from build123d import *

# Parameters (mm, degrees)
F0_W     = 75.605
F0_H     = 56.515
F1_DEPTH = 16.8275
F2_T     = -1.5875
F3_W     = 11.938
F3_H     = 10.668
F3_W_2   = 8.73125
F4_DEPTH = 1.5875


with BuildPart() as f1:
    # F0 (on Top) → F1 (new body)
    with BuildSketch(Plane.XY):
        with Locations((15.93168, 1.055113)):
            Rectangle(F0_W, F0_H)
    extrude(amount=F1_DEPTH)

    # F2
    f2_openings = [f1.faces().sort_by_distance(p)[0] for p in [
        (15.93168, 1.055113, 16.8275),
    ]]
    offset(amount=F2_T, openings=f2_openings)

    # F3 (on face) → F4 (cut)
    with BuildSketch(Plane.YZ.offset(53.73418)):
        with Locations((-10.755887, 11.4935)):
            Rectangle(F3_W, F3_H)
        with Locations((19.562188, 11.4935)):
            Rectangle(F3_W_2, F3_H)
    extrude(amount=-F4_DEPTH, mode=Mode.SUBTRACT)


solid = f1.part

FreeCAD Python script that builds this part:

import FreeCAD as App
import Part
import Sketcher
Q = App.Units.Quantity


def faces_at(feature, points):
    """Names of the faces that lie closest to the given points."""
    faces = feature.Shape.Faces
    near = lambda p: min(range(len(faces)), key=lambda i: faces[i].distToShape(Part.Vertex(*p))[0])
    return sorted({f"Face{near(p) + 1}" for p in points})

doc = App.newDocument("Part")
body = doc.addObject("PartDesign::Body", "Body")

# Sketch on XY plane
sketch1 = body.newObject("Sketcher::SketchObject", "Sketch")
sketch1.AttachmentSupport = (doc.getObject("XY_Plane"), [""])
sketch1.MapMode = "FlatFace"
sketch1.addGeometry([
    Part.LineSegment(App.Vector(-22, 29, 0), App.Vector(-22, -27, 0)),
    Part.LineSegment(App.Vector(-22, -27, 0), App.Vector(54, -27, 0)),
    Part.LineSegment(App.Vector(54, -27, 0), App.Vector(54, 29, 0)),
    Part.LineSegment(App.Vector(54, 29, 0), App.Vector(-22, 29, 0)),
], False)
sketch1.addConstraint([
    Sketcher.Constraint("Coincident", 0, 2, 1, 1),
    Sketcher.Constraint("Coincident", 1, 2, 2, 1),
    Sketcher.Constraint("Coincident", 2, 2, 3, 1),
    Sketcher.Constraint("Coincident", 3, 2, 0, 1),
    Sketcher.Constraint("Vertical", 0),
    Sketcher.Constraint("Horizontal", 1),
    Sketcher.Constraint("Vertical", 2),
    Sketcher.Constraint("Horizontal", 3),
    Sketcher.Constraint("DistanceY", 0, 2, 0, 1, Q("2.225 in")),
    Sketcher.Constraint("DistanceX", 1, 1, 1, 2, Q("75.605 mm")),
    Sketcher.Constraint("DistanceX", 0, 2, -1, 1, Q("21.87082 mm")),
    Sketcher.Constraint("DistanceY", 0, 2, -1, 1, Q("27.202387 mm")),
])
pad1 = body.newObject("PartDesign::Pad", "Pad")
pad1.Profile = sketch1
pad1.Length = Q("0.6625 in")
doc.recompute()

thickness = body.newObject("PartDesign::Thickness", "Thickness")
thickness.Base = (pad1, faces_at(pad1, [(15.932, 1.055, 16.828)]))
thickness.Value = Q("0.0625 in")
thickness.Reversed = True
thickness.Join = "Arc"

# Sketch on YZ plane
sketch2 = body.newObject("Sketcher::SketchObject", "Sketch001")
sketch2.AttachmentSupport = (doc.getObject("YZ_Plane"), [""])
sketch2.MapMode = "FlatFace"
sketch2.AttachmentOffset = App.Placement(App.Vector(0, 0, 53.73418), App.Rotation())
sketch2.addGeometry([
    Part.LineSegment(App.Vector(-17, 17, 0), App.Vector(-17, 6, 0)),  # 0
    Part.LineSegment(App.Vector(-17, 6, 0), App.Vector(-5, 6, 0)),  # 1
    Part.LineSegment(App.Vector(-5, 6, 0), App.Vector(-5, 17, 0)),  # 2
    Part.LineSegment(App.Vector(-5, 17, 0), App.Vector(-17, 17, 0)),  # 3
    Part.LineSegment(App.Vector(15, 17, 0), App.Vector(15, 6, 0)),  # 4
    Part.LineSegment(App.Vector(15, 6, 0), App.Vector(24, 6, 0)),  # 5
    Part.LineSegment(App.Vector(24, 6, 0), App.Vector(24, 17, 0)),  # 6
    Part.LineSegment(App.Vector(24, 17, 0), App.Vector(15, 17, 0)),  # 7
], False)
sketch2.addConstraint([
    Sketcher.Constraint("Coincident", 0, 2, 1, 1),
    Sketcher.Constraint("Coincident", 1, 2, 2, 1),
    Sketcher.Constraint("Coincident", 2, 2, 3, 1),
    Sketcher.Constraint("Coincident", 3, 2, 0, 1),
    Sketcher.Constraint("Coincident", 4, 2, 5, 1),
    Sketcher.Constraint("Coincident", 5, 2, 6, 1),
    Sketcher.Constraint("Coincident", 6, 2, 7, 1),
    Sketcher.Constraint("Coincident", 7, 2, 4, 1),
    Sketcher.Constraint("Vertical", 0),
    Sketcher.Constraint("Horizontal", 1),
    Sketcher.Constraint("Vertical", 2),
    Sketcher.Constraint("Horizontal", 3),
    Sketcher.Constraint("Vertical", 4),
    Sketcher.Constraint("Horizontal", 5),
    Sketcher.Constraint("Vertical", 6),
    Sketcher.Constraint("Horizontal", 7),
    Sketcher.Constraint("Horizontal", 1, 2, 4, 2),
    Sketcher.Constraint("Horizontal", 3, 2, 6, 2),
    Sketcher.Constraint("DistanceX", 1, 1, 1, 2, Q("0.47 in")),
    Sketcher.Constraint("DistanceY", 0, 2, 0, 1, Q("0.42 in")),
    Sketcher.Constraint("DistanceX", 5, 1, 5, 2, Q("0.34375 in")),
    Sketcher.Constraint("DistanceY", -1, 1, 0, 2, Q("0.2425 in")),
    Sketcher.Constraint("DistanceX", 1, 2, 5, 2, Q("1.1305 in")),
    Sketcher.Constraint("DistanceX", 0, 2, -1, 1, Q("16.724887 mm")),
])
pocket1 = body.newObject("PartDesign::Pocket", "Pocket")
pocket1.Profile = sketch2
pocket1.Length = Q("0.0625 in")

doc.recompute()
